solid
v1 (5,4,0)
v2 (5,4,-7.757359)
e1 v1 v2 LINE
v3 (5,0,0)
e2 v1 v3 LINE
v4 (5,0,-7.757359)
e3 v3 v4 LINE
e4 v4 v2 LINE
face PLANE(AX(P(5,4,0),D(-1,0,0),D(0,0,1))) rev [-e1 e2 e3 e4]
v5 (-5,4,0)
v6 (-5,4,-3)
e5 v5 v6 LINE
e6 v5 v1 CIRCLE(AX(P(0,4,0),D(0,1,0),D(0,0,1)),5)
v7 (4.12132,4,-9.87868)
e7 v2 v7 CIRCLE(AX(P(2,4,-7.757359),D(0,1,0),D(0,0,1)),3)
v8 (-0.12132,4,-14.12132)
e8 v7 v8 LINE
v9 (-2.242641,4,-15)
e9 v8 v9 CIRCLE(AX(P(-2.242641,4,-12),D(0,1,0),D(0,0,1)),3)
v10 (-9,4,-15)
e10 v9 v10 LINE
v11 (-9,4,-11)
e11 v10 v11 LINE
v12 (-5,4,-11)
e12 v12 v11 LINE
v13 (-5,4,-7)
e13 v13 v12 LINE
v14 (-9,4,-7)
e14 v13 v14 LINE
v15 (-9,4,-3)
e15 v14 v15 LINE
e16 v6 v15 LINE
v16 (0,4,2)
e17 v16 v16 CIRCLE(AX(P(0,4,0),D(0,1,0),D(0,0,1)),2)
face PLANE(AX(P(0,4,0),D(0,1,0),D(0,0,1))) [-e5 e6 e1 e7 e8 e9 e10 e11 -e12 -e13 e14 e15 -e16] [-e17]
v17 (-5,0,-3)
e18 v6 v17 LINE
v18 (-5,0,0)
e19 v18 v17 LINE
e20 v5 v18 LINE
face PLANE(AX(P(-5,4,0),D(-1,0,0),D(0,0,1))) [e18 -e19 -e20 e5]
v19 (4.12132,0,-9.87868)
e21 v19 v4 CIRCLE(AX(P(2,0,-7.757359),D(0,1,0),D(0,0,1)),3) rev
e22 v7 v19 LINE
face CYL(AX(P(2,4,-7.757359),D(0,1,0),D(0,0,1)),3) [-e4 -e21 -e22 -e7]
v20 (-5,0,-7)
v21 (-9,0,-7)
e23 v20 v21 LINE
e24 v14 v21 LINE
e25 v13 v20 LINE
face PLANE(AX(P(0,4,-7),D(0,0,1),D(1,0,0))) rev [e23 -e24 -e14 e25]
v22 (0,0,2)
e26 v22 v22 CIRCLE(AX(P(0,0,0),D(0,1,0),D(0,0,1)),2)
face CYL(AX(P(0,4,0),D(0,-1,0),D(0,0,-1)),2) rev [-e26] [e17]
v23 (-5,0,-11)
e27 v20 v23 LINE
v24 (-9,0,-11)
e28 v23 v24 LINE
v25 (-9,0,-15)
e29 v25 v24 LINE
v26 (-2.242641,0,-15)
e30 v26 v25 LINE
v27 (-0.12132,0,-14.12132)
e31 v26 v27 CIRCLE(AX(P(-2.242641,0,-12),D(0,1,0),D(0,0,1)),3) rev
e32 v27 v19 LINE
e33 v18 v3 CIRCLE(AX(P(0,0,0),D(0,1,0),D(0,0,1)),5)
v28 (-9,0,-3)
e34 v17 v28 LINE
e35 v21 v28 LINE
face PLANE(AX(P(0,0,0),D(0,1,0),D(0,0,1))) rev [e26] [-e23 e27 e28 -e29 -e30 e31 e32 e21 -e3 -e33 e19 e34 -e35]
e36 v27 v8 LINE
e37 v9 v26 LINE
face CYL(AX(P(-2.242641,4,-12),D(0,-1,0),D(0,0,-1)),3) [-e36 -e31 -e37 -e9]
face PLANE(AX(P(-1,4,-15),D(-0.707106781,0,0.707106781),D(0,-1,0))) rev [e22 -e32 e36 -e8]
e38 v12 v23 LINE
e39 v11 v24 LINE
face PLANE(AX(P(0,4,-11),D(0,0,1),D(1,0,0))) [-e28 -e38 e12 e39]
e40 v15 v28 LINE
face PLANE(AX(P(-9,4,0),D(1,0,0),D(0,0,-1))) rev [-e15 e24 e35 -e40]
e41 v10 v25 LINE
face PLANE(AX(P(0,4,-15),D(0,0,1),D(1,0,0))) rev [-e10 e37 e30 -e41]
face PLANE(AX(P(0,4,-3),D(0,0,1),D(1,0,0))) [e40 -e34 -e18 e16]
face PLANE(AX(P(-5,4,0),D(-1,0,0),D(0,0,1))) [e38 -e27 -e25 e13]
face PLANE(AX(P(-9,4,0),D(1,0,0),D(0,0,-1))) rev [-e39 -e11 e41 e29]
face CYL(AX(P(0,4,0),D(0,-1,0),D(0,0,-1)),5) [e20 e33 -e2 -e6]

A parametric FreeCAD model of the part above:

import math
import FreeCAD as App
import Part
import Sketcher

V = App.Vector
Q = App.Units.Quantity


def edges_at(feature, points):
    """Names of the edges that pass closest to the given points."""
    edges = feature.Shape.Edges
    near = lambda p: min(range(len(edges)), key=lambda i: edges[i].distToShape(Part.Vertex(*p))[0])
    return sorted({f"Edge{near(p) + 1}" for p in points})

doc = App.newDocument("Part")
body = doc.addObject("PartDesign::Body", "Body")

# Sketch on XZ plane
sketch1 = body.newObject("Sketcher::SketchObject", "Sketch")
sketch1.AttachmentSupport = (doc.getObject("XZ_Plane"), [""])
sketch1.MapMode = "FlatFace"
sketch1.addGeometry([
    Part.ArcOfCircle(Part.Circle(V(0, 0, 0), V(0, 0, 1), 5), math.radians(0), math.radians(180)),  # 0
    Part.LineSegment(V(5, 0, 0), V(5, -15, 0)),  # 1
    Part.LineSegment(V(5, -15, 0), V(-9, -15, 0)),  # 2
    Part.LineSegment(V(-9, -15, 0), V(-9, -11, 0)),  # 3
    Part.LineSegment(V(-9, -11, 0), V(-5, -11, 0)),  # 4
    Part.LineSegment(V(-5, -11, 0), V(-5, -7, 0)),  # 5
    Part.LineSegment(V(-5, -7, 0), V(-9, -7, 0)),  # 6
    Part.LineSegment(V(-9, -7, 0), V(-9, -3, 0)),  # 7
    Part.LineSegment(V(-9, -3, 0), V(-5, -3, 0)),  # 8
    Part.LineSegment(V(-5, -3, 0), V(-5, 0, 0)),  # 9
    Part.Circle(V(0, 0, 0), V(0, 0, 1), 2),  # 10
], False)
sketch1.addConstraint([
    Sketcher.Constraint("Tangent", 0, 1, 1, 1),
    Sketcher.Constraint("Coincident", 1, 2, 2, 1),
    Sketcher.Constraint("Coincident", 2, 2, 3, 1),
    Sketcher.Constraint("Coincident", 3, 2, 4, 1),
    Sketcher.Constraint("Coincident", 4, 2, 5, 1),
    Sketcher.Constraint("Coincident", 5, 2, 6, 1),
    Sketcher.Constraint("Coincident", 6, 2, 7, 1),
    Sketcher.Constraint("Coincident", 7, 2, 8, 1),
    Sketcher.Constraint("Coincident", 8, 2, 9, 1),
    Sketcher.Constraint("Tangent", 9, 2, 0, 2),
    Sketcher.Constraint("Vertical", 1),
    Sketcher.Constraint("Horizontal", 2),
    Sketcher.Constraint("Vertical", 3),
    Sketcher.Constraint("Horizontal", 4),
    Sketcher.Constraint("Vertical", 5),
    Sketcher.Constraint("Horizontal", 6),
    Sketcher.Constraint("Vertical", 7),
    Sketcher.Constraint("Horizontal", 8),
    Sketcher.Constraint("Vertical", 9),
    Sketcher.Constraint("Coincident", 0, 3, -1, 1),
    Sketcher.Constraint("Coincident", 10, 3, -1, 1),
    Sketcher.Constraint("Vertical", 3, 2, 6, 2),
    Sketcher.Constraint("Vertical", 5, 2, 8, 2),
    Sketcher.Constraint("Equal", 8, 3),
    Sketcher.Constraint("Equal", 3, 5),
    Sketcher.Constraint("Equal", 5, 7),
    Sketcher.Constraint("Diameter", 10, Q("4 mm")),
    Sketcher.Constraint("Radius", 0, Q("5 mm")),
    Sketcher.Constraint("DistanceX", 2, 2, 2, 1, Q("14 mm")),
    Sketcher.Constraint("DistanceY", 1, 2, 1, 1, Q("15 mm")),
])
pad1 = body.newObject("PartDesign::Pad", "Pad")
pad1.Profile = sketch1
pad1.Length = 4
pad1.Reversed = True
doc.recompute()

chamfer = body.newObject("PartDesign::Chamfer", "Chamfer")
chamfer.Base = (pad1, edges_at(pad1, [(5, 2, -15)]))
chamfer.Size = 6
doc.recompute()

fillet = body.newObject("PartDesign::Fillet", "Fillet")
fillet.Base = (chamfer, edges_at(chamfer, [(-1, 2, -15), (5, 2, -9)]))
fillet.Radius = 3

doc.recompute()
